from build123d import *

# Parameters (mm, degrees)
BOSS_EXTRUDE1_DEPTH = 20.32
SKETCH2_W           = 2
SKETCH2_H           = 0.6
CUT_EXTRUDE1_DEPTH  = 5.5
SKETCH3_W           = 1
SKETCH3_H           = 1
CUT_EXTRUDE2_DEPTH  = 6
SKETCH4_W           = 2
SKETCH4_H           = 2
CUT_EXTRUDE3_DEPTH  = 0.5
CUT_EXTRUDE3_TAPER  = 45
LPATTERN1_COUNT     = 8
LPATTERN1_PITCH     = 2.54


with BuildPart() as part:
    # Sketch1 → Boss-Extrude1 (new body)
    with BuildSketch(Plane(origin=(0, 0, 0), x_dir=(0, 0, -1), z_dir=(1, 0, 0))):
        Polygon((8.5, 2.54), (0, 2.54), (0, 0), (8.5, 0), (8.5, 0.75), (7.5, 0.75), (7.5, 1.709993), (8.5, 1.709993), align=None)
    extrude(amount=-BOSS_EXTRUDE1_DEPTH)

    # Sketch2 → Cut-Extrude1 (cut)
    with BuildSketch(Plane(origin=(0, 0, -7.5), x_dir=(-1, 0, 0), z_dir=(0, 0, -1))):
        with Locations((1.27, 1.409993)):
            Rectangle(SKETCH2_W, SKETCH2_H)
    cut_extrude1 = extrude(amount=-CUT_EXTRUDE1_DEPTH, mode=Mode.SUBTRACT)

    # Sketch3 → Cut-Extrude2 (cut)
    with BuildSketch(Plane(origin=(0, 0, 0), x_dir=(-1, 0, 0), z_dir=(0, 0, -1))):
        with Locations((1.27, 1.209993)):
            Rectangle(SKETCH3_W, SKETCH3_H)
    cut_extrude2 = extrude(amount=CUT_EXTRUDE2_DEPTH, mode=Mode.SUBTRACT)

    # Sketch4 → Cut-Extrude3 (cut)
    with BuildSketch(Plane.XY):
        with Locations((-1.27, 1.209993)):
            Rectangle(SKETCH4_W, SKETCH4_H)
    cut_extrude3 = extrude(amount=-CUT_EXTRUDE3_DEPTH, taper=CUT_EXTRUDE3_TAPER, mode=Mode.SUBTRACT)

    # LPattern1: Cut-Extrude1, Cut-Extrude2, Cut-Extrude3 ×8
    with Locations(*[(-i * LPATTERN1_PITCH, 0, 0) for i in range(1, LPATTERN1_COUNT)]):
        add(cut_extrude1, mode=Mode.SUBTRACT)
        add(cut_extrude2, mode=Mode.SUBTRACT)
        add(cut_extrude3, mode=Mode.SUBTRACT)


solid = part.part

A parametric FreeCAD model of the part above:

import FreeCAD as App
import Part
import Sketcher
Q = App.Units.Quantity

doc = App.newDocument("Part")
body = doc.addObject("PartDesign::Body", "Body")

# Sketch on YZ plane
sketch1 = body.newObject("Sketcher::SketchObject", "Sketch")
sketch1.AttachmentSupport = (doc.getObject("YZ_Plane"), [""])
sketch1.MapMode = "FlatFace"
sketch1.addGeometry([
    Part.LineSegment(App.Vector(2.5, -8.5, 0), App.Vector(2.5, 0, 0)),  # 0
    Part.LineSegment(App.Vector(2.5, 0, 0), App.Vector(0, 0, 0)),  # 1
    Part.LineSegment(App.Vector(0, 0, 0), App.Vector(0, -8.5, 0)),  # 2
    Part.LineSegment(App.Vector(0, -8.5, 0), App.Vector(0.8, -8.5, 0)),  # 3
    Part.LineSegment(App.Vector(0.8, -8.5, 0), App.Vector(0.8, -7.5, 0)),  # 4
    Part.LineSegment(App.Vector(0.8, -7.5, 0), App.Vector(1.7, -7.5, 0)),  # 5
    Part.LineSegment(App.Vector(1.7, -7.5, 0), App.Vector(1.7, -8.5, 0)),  # 6
    Part.LineSegment(App.Vector(1.7, -8.5, 0), App.Vector(2.5, -8.5, 0)),  # 7
], False)
sketch1.addConstraint([
    Sketcher.Constraint("Coincident", 0, 2, 1, 1),
    Sketcher.Constraint("Coincident", 1, 2, 2, 1),
    Sketcher.Constraint("Coincident", 2, 2, 3, 1),
    Sketcher.Constraint("Coincident", 3, 2, 4, 1),
    Sketcher.Constraint("Coincident", 4, 2, 5, 1),
    Sketcher.Constraint("Coincident", 5, 2, 6, 1),
    Sketcher.Constraint("Coincident", 6, 2, 7, 1),
    Sketcher.Constraint("Coincident", 7, 2, 0, 1),
    Sketcher.Constraint("Vertical", 0),
    Sketcher.Constraint("Horizontal", 1),
    Sketcher.Constraint("Vertical", 2),
    Sketcher.Constraint("Horizontal", 3),
    Sketcher.Constraint("Vertical", 4),
    Sketcher.Constraint("Horizontal", 5),
    Sketcher.Constraint("Vertical", 6),
    Sketcher.Constraint("Horizontal", 7),
    Sketcher.Constraint("Coincident", 1, 2, -1, 1),
    Sketcher.Constraint("Horizontal", 3, 2, 6, 2),
    Sketcher.Constraint("DistanceY", 4, 1, 4, 2, Q("1 mm")),
    Sketcher.Constraint("DistanceY", 0, 1, 0, 2, Q("8.5 mm")),
    Sketcher.Constraint("DistanceX", 1, 2, 1, 1, Q("2.54 mm")),
    Sketcher.Constraint("DistanceX", 3, 1, 3, 2, Q("0.75 mm")),
    Sketcher.Constraint("DistanceX", 5, 1, 5, 2, Q("0.959993 mm")),
])
pad1 = body.newObject("PartDesign::Pad", "Pad")
pad1.Profile = sketch1
pad1.Length = 20.32
pad1.Reversed = True

# Sketch on XY plane
sketch2 = body.newObject("Sketcher::SketchObject", "Sketch001")
sketch2.AttachmentSupport = (doc.getObject("XY_Plane"), [""])
sketch2.MapMode = "FlatFace"
sketch2.AttachmentOffset = App.Placement(App.Vector(0, 0, -7.5), App.Rotation())
sketch2.addGeometry([
    Part.LineSegment(App.Vector(-0.3, 1.7, 0), App.Vector(-0.3, 1.1, 0)),
    Part.LineSegment(App.Vector(-0.3, 1.1, 0), App.Vector(-2.3, 1.1, 0)),
    Part.LineSegment(App.Vector(-2.3, 1.1, 0), App.Vector(-2.3, 1.7, 0)),
    Part.LineSegment(App.Vector(-2.3, 1.7, 0), App.Vector(-0.3, 1.7, 0)),
], False)
sketch2.addConstraint([
    Sketcher.Constraint("Coincident", 0, 2, 1, 1),
    Sketcher.Constraint("Coincident", 1, 2, 2, 1),
    Sketcher.Constraint("Coincident", 2, 2, 3, 1),
    Sketcher.Constraint("Coincident", 3, 2, 0, 1),
    Sketcher.Constraint("Vertical", 0),
    Sketcher.Constraint("Horizontal", 1),
    Sketcher.Constraint("Vertical", 2),
    Sketcher.Constraint("Horizontal", 3),
    Sketcher.Constraint("DistanceX", 1, 2, 1, 1, Q("2 mm")),
    Sketcher.Constraint("DistanceY", 0, 2, 0, 1, Q("0.6 mm")),
    Sketcher.Constraint("DistanceX", 0, 2, -1, 1, Q("0.27 mm")),
    Sketcher.Constraint("DistanceY", -1, 1, 0, 2, Q("1.109993 mm")),
])
pocket1 = body.newObject("PartDesign::Pocket", "Pocket")
pocket1.Profile = sketch2
pocket1.Length = 5.5
pocket1.Reversed = True

# Sketch on XY plane
sketch3 = body.newObject("Sketcher::SketchObject", "Sketch002")
sketch3.AttachmentSupport = (doc.getObject("XY_Plane"), [""])
sketch3.MapMode = "FlatFace"
sketch3.addGeometry([
    Part.LineSegment(App.Vector(-0.8, 1.7, 0), App.Vector(-0.8, 0.7, 0)),
    Part.LineSegment(App.Vector(-0.8, 0.7, 0), App.Vector(-1.8, 0.7, 0)),
    Part.LineSegment(App.Vector(-1.8, 0.7, 0), App.Vector(-1.8, 1.7, 0)),
    Part.LineSegment(App.Vector(-1.8, 1.7, 0), App.Vector(-0.8, 1.7, 0)),
], False)
sketch3.addConstraint([
    Sketcher.Constraint("Coincident", 0, 2, 1, 1),
    Sketcher.Constraint("Coincident", 1, 2, 2, 1),
    Sketcher.Constraint("Coincident", 2, 2, 3, 1),
    Sketcher.Constraint("Coincident", 3, 2, 0, 1),
    Sketcher.Constraint("Vertical", 0),
    Sketcher.Constraint("Horizontal", 1),
    Sketcher.Constraint("Vertical", 2),
    Sketcher.Constraint("Horizontal", 3),
    Sketcher.Constraint("Equal", 3, 0),
    Sketcher.Constraint("DistanceX", 1, 2, 1, 1, Q("1 mm")),
    Sketcher.Constraint("DistanceX", 0, 2, -1, 1, Q("0.77 mm")),
    Sketcher.Constraint("DistanceY", -1, 1, 0, 2, Q("0.709993 mm")),
])
pocket2 = body.newObject("PartDesign::Pocket", "Pocket001")
pocket2.Profile = sketch3
pocket2.Length = 6

# Sketch on XY plane
sketch4 = body.newObject("Sketcher::SketchObject", "Sketch003")
sketch4.AttachmentSupport = (doc.getObject("XY_Plane"), [""])
sketch4.MapMode = "FlatFace"
sketch4.addGeometry([
    Part.LineSegment(App.Vector(-2.3, 2.2, 0), App.Vector(-2.3, 0.2, 0)),
    Part.LineSegment(App.Vector(-2.3, 0.2, 0), App.Vector(-0.3, 0.2, 0)),
    Part.LineSegment(App.Vector(-0.3, 0.2, 0), App.Vector(-0.3, 2.2, 0)),
    Part.LineSegment(App.Vector(-0.3, 2.2, 0), App.Vector(-2.3, 2.2, 0)),
], False)
sketch4.addConstraint([
    Sketcher.Constraint("Coincident", 0, 2, 1, 1),
    Sketcher.Constraint("Coincident", 1, 2, 2, 1),
    Sketcher.Constraint("Coincident", 2, 2, 3, 1),
    Sketcher.Constraint("Coincident", 3, 2, 0, 1),
    Sketcher.Constraint("Vertical", 0),
    Sketcher.Constraint("Horizontal", 1),
    Sketcher.Constraint("Vertical", 2),
    Sketcher.Constraint("Horizontal", 3),
    Sketcher.Constraint("Equal", 3, 0),
    Sketcher.Constraint("DistanceX", 1, 1, 1, 2, Q("2 mm")),
    Sketcher.Constraint("DistanceX", 0, 2, -1, 1, Q("2.27 mm")),
    Sketcher.Constraint("DistanceY", -1, 1, 0, 2, Q("0.209993 mm")),
])
pocket3 = body.newObject("PartDesign::Pocket", "Pocket002")
pocket3.Profile = sketch4
pocket3.Length = 0.5
pocket3.TaperAngle = -45
doc.recompute()

linearpattern = body.newObject("PartDesign::LinearPattern", "LinearPattern")
linearpattern.Originals = [pocket1, pocket2, pocket3]
linearpattern.Direction = (doc.getObject("X_Axis"), [""])
linearpattern.Mode = "offset"
linearpattern.Offset = 2.54
linearpattern.Occurrences = 8
linearpattern.Reversed = True
body.Tip = linearpattern

doc.recompute()
